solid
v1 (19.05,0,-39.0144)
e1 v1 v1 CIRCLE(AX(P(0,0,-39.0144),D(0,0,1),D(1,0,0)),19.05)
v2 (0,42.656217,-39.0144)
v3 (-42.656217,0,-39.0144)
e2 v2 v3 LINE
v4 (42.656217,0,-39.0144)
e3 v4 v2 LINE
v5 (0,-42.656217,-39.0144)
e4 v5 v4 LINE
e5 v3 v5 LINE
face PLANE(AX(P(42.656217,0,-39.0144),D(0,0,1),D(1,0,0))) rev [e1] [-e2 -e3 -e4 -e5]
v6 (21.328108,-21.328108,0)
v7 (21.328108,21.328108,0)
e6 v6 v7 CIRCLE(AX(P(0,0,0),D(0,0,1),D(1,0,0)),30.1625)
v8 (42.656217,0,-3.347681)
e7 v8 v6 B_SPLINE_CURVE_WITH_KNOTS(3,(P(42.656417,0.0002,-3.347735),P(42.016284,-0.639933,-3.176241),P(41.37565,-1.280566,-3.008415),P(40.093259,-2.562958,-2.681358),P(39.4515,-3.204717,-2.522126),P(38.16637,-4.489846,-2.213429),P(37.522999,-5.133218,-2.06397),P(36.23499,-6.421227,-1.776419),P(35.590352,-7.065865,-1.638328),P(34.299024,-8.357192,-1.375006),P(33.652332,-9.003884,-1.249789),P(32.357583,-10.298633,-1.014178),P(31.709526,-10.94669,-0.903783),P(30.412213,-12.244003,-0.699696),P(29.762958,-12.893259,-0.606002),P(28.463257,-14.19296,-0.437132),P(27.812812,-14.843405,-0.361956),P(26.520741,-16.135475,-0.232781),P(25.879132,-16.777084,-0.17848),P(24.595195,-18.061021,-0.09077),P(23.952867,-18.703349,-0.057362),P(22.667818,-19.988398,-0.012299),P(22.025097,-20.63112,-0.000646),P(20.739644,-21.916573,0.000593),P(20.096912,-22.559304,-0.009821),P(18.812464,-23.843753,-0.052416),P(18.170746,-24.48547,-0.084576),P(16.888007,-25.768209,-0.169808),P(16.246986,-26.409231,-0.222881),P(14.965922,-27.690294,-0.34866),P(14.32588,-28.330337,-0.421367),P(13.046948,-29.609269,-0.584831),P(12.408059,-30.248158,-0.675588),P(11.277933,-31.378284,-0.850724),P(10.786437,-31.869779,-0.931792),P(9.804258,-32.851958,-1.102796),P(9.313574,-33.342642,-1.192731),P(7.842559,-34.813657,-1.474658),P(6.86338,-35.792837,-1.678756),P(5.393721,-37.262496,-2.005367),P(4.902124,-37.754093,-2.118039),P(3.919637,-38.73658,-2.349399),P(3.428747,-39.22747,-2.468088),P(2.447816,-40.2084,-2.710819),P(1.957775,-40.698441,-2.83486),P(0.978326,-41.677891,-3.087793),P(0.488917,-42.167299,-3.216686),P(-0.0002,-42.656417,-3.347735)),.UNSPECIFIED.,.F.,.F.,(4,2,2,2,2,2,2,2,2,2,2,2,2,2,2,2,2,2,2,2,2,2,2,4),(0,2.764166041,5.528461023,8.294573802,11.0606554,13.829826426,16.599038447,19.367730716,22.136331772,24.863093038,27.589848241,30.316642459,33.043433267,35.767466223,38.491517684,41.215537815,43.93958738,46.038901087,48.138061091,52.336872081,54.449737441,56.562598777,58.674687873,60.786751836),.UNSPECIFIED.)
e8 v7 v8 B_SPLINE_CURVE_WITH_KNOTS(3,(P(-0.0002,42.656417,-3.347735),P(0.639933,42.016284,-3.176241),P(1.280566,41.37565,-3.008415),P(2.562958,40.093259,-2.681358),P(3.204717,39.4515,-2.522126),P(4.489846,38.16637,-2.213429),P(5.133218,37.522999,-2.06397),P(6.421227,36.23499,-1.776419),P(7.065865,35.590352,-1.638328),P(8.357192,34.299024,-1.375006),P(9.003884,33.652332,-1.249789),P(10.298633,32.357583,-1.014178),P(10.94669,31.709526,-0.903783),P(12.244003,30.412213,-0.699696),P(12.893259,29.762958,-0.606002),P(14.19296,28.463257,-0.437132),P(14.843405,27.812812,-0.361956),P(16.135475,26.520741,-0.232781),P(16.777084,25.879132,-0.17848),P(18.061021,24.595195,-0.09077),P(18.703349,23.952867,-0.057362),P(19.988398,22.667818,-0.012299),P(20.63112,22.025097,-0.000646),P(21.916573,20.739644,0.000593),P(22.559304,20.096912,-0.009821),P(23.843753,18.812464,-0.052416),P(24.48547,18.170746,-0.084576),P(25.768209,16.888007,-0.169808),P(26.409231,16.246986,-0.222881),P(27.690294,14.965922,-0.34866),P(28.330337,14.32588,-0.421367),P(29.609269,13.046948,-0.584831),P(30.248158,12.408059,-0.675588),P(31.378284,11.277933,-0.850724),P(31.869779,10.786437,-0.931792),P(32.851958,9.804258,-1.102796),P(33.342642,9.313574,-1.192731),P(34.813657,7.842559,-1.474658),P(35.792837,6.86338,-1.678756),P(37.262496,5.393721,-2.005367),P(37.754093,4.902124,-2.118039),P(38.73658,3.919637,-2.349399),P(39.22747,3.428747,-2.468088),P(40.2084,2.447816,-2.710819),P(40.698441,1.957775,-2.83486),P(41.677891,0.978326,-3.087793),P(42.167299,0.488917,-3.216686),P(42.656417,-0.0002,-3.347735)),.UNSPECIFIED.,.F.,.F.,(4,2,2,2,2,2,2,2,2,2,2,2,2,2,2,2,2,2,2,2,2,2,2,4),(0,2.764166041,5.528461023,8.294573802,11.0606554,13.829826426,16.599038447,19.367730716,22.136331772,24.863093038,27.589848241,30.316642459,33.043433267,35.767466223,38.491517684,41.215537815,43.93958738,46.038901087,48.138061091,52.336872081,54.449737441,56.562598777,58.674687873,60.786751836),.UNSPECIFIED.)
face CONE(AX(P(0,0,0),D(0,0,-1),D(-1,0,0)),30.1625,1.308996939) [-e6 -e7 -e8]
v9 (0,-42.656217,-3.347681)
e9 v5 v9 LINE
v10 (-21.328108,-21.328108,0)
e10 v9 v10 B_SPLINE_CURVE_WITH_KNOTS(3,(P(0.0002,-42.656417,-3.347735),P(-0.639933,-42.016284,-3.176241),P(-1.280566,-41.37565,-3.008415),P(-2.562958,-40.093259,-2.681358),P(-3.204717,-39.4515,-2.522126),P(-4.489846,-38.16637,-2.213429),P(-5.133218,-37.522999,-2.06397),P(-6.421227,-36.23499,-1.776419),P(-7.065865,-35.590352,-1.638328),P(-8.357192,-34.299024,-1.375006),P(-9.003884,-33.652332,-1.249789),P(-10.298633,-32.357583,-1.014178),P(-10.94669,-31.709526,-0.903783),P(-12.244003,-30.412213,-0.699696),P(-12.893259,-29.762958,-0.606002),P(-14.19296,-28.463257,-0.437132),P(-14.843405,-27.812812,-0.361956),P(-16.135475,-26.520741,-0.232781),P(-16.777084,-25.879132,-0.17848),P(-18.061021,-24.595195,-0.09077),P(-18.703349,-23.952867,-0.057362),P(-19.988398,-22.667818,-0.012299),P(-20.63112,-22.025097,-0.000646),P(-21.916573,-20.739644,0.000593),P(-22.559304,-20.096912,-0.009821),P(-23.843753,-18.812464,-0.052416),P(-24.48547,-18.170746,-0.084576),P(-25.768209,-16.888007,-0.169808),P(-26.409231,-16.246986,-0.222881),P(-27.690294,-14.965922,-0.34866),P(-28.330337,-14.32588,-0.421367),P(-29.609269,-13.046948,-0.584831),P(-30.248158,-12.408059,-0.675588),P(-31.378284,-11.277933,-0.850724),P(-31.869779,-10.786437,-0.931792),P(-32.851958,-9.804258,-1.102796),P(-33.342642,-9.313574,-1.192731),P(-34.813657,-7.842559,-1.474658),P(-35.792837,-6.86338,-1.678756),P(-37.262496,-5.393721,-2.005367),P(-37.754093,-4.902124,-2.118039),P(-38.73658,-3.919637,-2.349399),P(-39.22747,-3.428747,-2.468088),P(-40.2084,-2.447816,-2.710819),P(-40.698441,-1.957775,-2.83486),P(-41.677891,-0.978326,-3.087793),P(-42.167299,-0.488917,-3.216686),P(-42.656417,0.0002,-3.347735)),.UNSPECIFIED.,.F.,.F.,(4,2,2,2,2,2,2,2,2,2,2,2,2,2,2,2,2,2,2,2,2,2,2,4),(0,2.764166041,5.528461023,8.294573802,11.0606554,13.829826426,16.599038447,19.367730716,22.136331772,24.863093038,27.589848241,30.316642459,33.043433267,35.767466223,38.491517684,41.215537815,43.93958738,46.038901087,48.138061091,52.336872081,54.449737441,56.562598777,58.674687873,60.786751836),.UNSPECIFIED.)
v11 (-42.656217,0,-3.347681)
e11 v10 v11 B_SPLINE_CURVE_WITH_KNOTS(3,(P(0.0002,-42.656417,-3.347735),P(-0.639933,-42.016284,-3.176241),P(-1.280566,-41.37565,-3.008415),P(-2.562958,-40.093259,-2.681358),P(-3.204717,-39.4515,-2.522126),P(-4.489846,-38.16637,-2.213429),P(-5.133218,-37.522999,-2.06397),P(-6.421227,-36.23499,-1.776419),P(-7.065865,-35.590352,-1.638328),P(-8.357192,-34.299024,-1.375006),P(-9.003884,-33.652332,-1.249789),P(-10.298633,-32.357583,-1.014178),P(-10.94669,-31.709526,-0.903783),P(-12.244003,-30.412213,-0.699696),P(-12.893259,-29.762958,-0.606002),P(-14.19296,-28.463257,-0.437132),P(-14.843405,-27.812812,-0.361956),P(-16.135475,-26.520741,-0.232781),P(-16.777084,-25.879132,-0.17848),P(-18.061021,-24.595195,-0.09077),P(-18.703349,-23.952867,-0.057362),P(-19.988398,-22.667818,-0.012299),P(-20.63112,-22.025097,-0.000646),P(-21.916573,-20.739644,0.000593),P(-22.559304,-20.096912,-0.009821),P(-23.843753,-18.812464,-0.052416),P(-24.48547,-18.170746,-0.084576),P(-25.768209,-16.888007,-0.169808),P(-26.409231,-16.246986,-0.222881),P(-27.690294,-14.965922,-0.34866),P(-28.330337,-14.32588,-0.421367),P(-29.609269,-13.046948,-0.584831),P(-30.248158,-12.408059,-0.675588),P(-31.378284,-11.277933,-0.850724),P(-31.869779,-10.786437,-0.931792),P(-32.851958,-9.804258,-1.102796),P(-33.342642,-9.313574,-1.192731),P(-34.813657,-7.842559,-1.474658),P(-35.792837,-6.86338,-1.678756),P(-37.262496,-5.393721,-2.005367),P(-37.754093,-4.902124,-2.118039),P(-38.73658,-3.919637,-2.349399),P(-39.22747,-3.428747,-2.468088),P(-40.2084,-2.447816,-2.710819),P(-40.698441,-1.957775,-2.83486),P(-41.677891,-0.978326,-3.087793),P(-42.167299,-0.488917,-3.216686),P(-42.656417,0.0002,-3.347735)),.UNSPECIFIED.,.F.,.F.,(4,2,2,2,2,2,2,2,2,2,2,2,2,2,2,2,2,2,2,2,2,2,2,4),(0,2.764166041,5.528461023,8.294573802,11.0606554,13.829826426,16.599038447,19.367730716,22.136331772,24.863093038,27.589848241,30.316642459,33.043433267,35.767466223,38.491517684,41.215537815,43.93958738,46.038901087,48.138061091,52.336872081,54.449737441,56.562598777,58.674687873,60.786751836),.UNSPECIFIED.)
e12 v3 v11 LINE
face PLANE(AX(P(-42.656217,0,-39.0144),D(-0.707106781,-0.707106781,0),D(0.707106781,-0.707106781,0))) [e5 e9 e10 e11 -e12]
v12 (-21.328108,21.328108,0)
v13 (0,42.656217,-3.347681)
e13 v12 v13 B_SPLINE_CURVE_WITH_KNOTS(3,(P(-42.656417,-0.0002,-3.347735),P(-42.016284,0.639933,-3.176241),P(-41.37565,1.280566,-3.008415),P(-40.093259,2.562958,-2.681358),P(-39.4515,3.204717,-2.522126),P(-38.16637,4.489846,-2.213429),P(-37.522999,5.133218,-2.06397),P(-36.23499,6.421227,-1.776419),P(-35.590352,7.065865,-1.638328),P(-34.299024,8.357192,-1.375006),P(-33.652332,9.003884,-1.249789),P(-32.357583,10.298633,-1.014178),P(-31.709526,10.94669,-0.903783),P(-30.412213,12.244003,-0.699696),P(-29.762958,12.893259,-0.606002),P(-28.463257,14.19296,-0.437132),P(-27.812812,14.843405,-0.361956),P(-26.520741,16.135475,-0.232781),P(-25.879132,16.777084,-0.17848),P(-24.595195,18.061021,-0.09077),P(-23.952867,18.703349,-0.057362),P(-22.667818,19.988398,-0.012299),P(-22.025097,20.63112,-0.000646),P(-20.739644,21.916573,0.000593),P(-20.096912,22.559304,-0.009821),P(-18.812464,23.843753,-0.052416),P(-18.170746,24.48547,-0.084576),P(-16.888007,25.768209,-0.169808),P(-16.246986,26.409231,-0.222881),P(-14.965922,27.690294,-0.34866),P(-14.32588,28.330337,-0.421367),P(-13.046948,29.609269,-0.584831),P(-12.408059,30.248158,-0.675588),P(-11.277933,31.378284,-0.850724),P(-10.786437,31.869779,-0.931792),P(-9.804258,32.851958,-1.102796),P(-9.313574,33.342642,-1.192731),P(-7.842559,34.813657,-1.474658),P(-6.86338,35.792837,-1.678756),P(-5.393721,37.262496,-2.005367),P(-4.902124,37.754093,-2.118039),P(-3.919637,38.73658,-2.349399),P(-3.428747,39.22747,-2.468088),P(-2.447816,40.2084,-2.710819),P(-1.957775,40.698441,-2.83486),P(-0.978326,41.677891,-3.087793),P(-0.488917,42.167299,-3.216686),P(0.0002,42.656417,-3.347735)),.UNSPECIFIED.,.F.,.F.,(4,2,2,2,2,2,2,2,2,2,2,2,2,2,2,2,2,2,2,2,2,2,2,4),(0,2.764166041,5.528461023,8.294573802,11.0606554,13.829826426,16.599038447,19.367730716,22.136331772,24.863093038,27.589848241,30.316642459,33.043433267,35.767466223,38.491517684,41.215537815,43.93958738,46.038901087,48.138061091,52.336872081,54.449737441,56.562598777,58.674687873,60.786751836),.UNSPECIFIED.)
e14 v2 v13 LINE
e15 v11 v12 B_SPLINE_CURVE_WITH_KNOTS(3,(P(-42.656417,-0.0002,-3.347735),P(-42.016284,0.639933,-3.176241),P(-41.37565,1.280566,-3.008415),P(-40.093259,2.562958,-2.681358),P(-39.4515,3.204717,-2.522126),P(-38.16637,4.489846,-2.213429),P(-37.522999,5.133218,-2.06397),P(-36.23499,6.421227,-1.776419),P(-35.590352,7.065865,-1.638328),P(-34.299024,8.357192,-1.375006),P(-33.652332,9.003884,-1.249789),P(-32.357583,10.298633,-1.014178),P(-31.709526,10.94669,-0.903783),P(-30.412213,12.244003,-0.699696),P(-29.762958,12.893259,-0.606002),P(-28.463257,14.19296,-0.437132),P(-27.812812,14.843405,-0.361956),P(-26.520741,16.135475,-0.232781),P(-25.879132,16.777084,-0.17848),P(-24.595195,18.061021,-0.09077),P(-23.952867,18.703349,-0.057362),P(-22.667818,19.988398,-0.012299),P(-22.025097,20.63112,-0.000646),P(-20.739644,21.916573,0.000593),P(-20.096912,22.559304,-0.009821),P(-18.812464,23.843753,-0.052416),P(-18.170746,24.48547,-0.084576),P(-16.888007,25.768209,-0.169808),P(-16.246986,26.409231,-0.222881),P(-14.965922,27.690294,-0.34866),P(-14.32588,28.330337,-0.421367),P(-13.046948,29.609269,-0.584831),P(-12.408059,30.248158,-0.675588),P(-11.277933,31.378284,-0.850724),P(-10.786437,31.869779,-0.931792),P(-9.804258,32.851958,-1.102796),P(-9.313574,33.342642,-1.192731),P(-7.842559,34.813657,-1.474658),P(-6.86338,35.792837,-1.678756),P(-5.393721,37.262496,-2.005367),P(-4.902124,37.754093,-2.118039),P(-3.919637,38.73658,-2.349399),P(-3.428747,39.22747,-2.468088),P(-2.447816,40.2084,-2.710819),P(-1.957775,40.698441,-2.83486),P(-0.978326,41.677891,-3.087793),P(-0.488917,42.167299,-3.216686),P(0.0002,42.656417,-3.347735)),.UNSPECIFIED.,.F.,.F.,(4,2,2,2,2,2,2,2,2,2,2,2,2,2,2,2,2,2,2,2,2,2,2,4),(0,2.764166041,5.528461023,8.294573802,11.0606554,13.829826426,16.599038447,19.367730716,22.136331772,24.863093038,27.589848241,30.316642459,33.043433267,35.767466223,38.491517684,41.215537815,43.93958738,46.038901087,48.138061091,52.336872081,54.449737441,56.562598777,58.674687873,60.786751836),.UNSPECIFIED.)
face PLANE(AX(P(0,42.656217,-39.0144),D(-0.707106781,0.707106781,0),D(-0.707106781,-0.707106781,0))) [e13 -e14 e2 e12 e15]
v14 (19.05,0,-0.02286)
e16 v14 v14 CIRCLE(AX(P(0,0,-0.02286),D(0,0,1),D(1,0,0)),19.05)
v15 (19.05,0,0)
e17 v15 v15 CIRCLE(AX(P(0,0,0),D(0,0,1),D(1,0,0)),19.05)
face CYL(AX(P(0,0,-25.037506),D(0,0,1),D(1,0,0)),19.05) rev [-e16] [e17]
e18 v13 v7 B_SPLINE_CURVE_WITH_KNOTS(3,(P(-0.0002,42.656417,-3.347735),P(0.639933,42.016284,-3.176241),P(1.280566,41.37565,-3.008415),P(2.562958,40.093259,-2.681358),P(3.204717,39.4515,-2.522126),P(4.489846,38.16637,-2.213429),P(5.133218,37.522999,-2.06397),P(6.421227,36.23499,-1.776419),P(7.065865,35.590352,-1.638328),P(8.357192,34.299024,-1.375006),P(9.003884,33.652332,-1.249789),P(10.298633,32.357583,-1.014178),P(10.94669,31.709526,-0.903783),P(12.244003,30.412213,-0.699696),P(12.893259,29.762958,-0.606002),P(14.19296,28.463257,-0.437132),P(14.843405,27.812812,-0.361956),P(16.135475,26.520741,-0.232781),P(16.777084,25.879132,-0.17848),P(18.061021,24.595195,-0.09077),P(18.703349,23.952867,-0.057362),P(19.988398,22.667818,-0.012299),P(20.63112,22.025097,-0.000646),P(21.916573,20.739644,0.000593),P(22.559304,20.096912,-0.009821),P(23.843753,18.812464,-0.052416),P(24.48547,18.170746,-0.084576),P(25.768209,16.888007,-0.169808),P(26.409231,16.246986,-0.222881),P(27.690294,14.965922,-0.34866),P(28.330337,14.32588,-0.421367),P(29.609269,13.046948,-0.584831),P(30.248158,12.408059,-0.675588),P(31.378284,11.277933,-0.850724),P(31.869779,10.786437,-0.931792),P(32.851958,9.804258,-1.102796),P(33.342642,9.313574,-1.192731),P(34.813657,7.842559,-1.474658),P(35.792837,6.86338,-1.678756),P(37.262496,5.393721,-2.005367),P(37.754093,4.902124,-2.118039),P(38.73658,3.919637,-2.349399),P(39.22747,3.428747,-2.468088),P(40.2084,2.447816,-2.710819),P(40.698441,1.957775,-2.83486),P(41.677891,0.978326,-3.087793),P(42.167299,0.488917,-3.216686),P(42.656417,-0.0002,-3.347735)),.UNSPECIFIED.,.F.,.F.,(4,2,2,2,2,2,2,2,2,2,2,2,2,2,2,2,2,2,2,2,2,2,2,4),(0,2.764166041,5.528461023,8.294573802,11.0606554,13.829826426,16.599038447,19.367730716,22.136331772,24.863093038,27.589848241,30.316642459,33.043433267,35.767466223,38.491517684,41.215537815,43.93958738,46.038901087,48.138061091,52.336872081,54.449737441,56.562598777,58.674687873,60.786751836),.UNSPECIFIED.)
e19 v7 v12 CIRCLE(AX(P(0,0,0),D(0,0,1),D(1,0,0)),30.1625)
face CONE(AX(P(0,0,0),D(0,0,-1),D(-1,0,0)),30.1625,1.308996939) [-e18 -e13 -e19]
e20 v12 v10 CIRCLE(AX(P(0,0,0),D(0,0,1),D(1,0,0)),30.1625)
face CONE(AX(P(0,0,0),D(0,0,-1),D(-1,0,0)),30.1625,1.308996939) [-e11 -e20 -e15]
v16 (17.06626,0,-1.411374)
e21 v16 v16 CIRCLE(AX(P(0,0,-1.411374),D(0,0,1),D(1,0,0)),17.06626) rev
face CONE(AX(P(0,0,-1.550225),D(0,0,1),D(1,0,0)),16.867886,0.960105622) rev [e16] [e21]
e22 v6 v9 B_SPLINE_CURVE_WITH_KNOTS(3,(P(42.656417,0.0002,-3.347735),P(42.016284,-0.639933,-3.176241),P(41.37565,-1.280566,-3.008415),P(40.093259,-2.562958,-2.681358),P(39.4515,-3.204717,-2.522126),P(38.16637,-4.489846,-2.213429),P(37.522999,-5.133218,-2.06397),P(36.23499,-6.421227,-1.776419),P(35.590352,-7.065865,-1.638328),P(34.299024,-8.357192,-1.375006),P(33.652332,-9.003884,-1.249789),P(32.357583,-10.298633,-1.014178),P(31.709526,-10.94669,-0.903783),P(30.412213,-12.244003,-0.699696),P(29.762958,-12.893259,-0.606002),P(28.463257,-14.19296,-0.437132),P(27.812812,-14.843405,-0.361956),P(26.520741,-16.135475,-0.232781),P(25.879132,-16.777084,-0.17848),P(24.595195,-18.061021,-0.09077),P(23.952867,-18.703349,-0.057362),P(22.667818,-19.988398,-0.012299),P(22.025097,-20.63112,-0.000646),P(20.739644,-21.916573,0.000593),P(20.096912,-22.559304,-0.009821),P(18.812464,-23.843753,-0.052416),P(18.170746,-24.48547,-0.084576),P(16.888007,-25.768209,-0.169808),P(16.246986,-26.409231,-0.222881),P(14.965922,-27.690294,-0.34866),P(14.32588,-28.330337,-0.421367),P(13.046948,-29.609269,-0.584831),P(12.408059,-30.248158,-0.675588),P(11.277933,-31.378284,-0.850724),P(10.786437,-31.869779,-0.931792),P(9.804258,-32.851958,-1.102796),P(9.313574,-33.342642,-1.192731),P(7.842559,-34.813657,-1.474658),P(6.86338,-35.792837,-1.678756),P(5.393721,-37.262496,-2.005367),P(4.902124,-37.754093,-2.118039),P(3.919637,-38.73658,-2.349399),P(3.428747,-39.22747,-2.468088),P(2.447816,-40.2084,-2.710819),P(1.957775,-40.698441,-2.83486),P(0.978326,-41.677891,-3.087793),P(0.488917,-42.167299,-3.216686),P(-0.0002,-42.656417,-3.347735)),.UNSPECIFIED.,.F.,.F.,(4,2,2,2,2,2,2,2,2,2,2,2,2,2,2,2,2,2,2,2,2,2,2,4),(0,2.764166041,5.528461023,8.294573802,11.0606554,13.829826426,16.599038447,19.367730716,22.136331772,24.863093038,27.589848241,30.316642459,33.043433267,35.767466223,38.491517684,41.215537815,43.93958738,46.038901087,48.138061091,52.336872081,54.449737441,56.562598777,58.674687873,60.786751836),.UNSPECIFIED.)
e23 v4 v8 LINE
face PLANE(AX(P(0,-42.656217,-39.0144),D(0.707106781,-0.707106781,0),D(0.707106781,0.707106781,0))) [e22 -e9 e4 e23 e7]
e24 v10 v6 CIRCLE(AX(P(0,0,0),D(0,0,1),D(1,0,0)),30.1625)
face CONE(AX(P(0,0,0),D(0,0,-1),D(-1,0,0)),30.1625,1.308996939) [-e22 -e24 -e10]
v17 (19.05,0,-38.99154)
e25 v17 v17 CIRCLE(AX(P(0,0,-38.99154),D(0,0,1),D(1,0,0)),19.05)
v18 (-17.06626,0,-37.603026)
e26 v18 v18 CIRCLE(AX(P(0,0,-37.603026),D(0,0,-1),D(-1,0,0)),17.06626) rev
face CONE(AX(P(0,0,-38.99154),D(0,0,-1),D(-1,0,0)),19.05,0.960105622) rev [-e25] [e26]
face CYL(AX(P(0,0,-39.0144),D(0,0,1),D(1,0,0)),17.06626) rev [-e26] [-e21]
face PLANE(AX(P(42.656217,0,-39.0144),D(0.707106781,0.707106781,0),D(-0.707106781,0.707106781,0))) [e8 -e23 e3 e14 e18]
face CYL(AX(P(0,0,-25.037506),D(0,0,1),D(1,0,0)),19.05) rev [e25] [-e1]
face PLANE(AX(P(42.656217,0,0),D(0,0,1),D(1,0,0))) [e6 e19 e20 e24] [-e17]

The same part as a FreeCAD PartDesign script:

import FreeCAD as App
import Part
import Sketcher

V = App.Vector
Q = App.Units.Quantity


def add_polygon(sketch, points):
    """Adds a closed chain of lines whose ends are joined by coincident constraints."""
    first, n = sketch.GeometryCount, len(points)
    for a, b in zip(points, points[1:] + points[:1]):
        sketch.addGeometry(Part.LineSegment(App.Vector(*a, 0), App.Vector(*b, 0)), False)
    for i in range(n):
        sketch.addConstraint(Sketcher.Constraint("Coincident", first + i, 2, first + (i + 1) % n, 1))

doc = App.newDocument("Part")
params = doc.addObject("Spreadsheet::Sheet", "Params")
for row, (alias, value) in enumerate([
    ("sketch1_length", "2.375 in"),
    ("pad1_length", "1.536 in"),
    ("groove_angle", "360 deg"),
    ("sketch3_height", "0.5 in"),
    ("groove2_angle", "360 deg"),
], start=1):
    params.set(f"A{row}", alias)
    params.set(f"B{row}", "=" + value)
    params.setAlias(f"B{row}", alias)

body = doc.addObject("PartDesign::Body", "Body")

sketch1 = body.newObject("Sketcher::SketchObject", "Sketch")
sketch1.AttachmentSupport = (doc.getObject("XY_Plane"), [""])
sketch1.MapMode = "FlatFace"
sketch1.AttachmentOffset = App.Placement(V(0, 0, -1.536 * 25.4), App.Rotation())
add_polygon(sketch1, [(42.656217, 0), (0, 42.656217), (-42.656217, 0), (0, -42.656217)])
sketch1.addGeometry(Part.Circle(V(0, 0, 0), V(0, 0, 1), 17.06626), False)
sketch1.addConstraint([
    Sketcher.Constraint("Coincident", 4, 3, -1, 1),
    Sketcher.Constraint("Symmetric", 0, 2, 2, 2, -1, 1),
    Sketcher.Constraint("Symmetric", 1, 2, 3, 2, -1, 1),
    Sketcher.Constraint("PointOnObject", 0, 2, -2),
    Sketcher.Constraint("PointOnObject", 1, 2, -1),
    Sketcher.Constraint("Perpendicular", 0, 1),
    Sketcher.Constraint("Diameter", 4, Q("1.3438 in")),
    Sketcher.Constraint("Distance", 0, Q("2.375 in")),
])
sketch1.setExpression("Constraints[11]", "Params.sketch1_length")
pad1 = body.newObject("PartDesign::Pad", "Pad")
pad1.Profile = sketch1
pad1.setExpression("Length", "Params.pad1_length")

sketch2 = body.newObject("Sketcher::SketchObject", "Sketch001")
sketch2.AttachmentSupport = (doc.getObject("YZ_Plane"), [""])
sketch2.MapMode = "FlatFace"
add_polygon(sketch2, [(19.05, -38.99154), (16.867886, -37.464175), (16.867886, -39.0144), (19.05, -39.0144)])
add_polygon(sketch2, [(19.05, -0.02286), (19.05, 0), (16.867886, 0), (16.867886, -1.550225)])
sketch2.addConstraint([
    Sketcher.Constraint("Vertical", 1),
    Sketcher.Constraint("Horizontal", 2),
    Sketcher.Constraint("Vertical", 3),
    Sketcher.Constraint("Vertical", 4),
    Sketcher.Constraint("Horizontal", 5),
    Sketcher.Constraint("Vertical", 6),
    Sketcher.Constraint("PointOnObject", 4, 2, -1),
    Sketcher.Constraint("Vertical", 3, 2, 4, 2),
    Sketcher.Constraint("Vertical", 1, 2, 5, 2),
    Sketcher.Constraint("Equal", 3, 4),
    Sketcher.Constraint("Equal", 1, 6),
    Sketcher.Constraint("DistanceX", -1, 1, 2, 2, Q("0.75 in")),
    Sketcher.Constraint("Angle", 0, Q("145.01 deg")),
    Sketcher.Constraint("DistanceY", 3, 1, 3, 2, Q("0.0009 in")),
    Sketcher.Constraint("DistanceY", 1, 2, -1, 1, Q("1.536 in")),
    Sketcher.Constraint("DistanceX", 2, 1, 2, 2, Q("2.182114 mm")),
])
groove = body.newObject("PartDesign::Groove", "Groove")
groove.Profile = sketch2
groove.ReferenceAxis = (sketch2, ["V_Axis"])
groove.setExpression("Angle", "Params.groove_angle")

sketch3 = body.newObject("Sketcher::SketchObject", "Sketch002")
sketch3.AttachmentSupport = (doc.getObject("YZ_Plane"), [""])
sketch3.MapMode = "FlatFace"
add_polygon(sketch3, [(30.1625, 12.7), (30.1625, 0), (55.356217, -6.750636), (55.356217, 12.7)])
sketch3.addConstraint([
    Sketcher.Constraint("Vertical", 0),
    Sketcher.Constraint("Vertical", 2),
    Sketcher.Constraint("Horizontal", 3),
    Sketcher.Constraint("PointOnObject", 0, 2, -1),
    Sketcher.Constraint("DistanceY", 0, 2, 0, 1, Q("0.5 in")),
    Sketcher.Constraint("Angle", 1, Q("-15 deg")),
    Sketcher.Constraint("DistanceX", -1, 1, 0, 2, Q("1.1875 in")),
    Sketcher.Constraint("DistanceX", 3, 2, 3, 1, Q("25.193717 mm")),
])
sketch3.setExpression("Constraints[8]", "Params.sketch3_height")
groove2 = body.newObject("PartDesign::Groove", "Groove001")
groove2.Profile = sketch3
groove2.ReferenceAxis = (sketch3, ["V_Axis"])
groove2.setExpression("Angle", "Params.groove2_angle")

doc.recompute()
